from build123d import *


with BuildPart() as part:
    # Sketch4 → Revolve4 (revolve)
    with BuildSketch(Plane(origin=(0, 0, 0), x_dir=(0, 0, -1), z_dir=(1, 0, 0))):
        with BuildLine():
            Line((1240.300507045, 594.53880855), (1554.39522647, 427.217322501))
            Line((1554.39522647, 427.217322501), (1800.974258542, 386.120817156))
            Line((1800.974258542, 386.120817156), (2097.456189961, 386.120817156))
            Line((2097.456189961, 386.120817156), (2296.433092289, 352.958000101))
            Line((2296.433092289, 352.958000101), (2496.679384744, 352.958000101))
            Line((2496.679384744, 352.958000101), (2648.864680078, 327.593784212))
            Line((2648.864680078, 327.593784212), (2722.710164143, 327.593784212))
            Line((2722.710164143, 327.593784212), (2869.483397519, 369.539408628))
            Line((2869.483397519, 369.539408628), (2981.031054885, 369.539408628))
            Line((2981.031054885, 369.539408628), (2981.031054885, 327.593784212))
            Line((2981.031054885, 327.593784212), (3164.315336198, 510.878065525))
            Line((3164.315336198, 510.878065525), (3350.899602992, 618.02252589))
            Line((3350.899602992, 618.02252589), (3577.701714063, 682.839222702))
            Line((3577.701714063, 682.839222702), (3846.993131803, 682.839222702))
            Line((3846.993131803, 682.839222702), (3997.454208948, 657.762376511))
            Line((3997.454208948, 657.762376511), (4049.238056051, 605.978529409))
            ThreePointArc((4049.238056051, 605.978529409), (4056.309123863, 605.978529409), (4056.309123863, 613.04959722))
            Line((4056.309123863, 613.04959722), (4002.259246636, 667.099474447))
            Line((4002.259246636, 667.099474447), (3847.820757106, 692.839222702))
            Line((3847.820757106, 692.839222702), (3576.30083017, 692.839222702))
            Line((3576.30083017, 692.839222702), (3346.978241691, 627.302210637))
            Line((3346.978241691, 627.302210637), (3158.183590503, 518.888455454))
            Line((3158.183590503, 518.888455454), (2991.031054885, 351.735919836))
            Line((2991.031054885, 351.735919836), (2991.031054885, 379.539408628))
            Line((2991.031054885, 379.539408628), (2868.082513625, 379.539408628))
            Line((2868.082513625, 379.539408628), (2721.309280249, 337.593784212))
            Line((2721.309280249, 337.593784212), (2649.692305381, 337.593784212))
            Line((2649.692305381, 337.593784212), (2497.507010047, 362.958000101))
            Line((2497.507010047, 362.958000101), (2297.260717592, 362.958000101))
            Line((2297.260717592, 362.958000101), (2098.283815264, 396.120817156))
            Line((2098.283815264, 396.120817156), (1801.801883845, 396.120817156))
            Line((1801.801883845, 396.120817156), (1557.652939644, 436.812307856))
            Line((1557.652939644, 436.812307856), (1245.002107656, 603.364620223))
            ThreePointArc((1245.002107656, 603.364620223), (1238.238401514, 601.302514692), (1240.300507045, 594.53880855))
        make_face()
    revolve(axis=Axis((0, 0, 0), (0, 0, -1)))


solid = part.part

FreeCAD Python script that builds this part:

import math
import FreeCAD as App
import Part
import Sketcher

V = App.Vector
Q = App.Units.Quantity

doc = App.newDocument("Part")
body = doc.addObject("PartDesign::Body", "Body")

# Sketch on YZ plane
sketch1 = doc.addObject("Sketcher::SketchObject", "Sketch")
body.addObject(sketch1)
sketch1.AttachmentSupport = (doc.YZ_Plane, [""])
sketch1.MapMode = "FlatFace"
sketch1.addGeometry(Part.LineSegment(V(594.538809, -1240.300507, 0), V(427.217323, -1554.395226, 0)), False)
sketch1.addGeometry(Part.LineSegment(V(427.217323, -1554.395226, 0), V(386.120817, -1800.974259, 0)), False)
sketch1.addGeometry(Part.LineSegment(V(386.120817, -1800.974259, 0), V(386.120817, -2097.45619, 0)), False)
sketch1.addGeometry(Part.LineSegment(V(386.120817, -2097.45619, 0), V(352.958, -2296.433092, 0)), False)
sketch1.addGeometry(Part.LineSegment(V(352.958, -2296.433092, 0), V(352.958, -2496.679385, 0)), False)
sketch1.addGeometry(Part.LineSegment(V(352.958, -2496.679385, 0), V(327.593784, -2648.86468, 0)), False)
sketch1.addGeometry(Part.LineSegment(V(327.593784, -2648.86468, 0), V(327.593784, -2722.710164, 0)), False)
sketch1.addGeometry(Part.LineSegment(V(327.593784, -2722.710164, 0), V(369.539409, -2869.483398, 0)), False)
sketch1.addGeometry(Part.LineSegment(V(369.539409, -2869.483398, 0), V(369.539409, -2981.031055, 0)), False)
sketch1.addGeometry(Part.LineSegment(V(369.539409, -2981.031055, 0), V(327.593784, -2981.031055, 0)), False)
sketch1.addGeometry(Part.LineSegment(V(327.593784, -2981.031055, 0), V(510.878066, -3164.315336, 0)), False)
sketch1.addGeometry(Part.LineSegment(V(510.878066, -3164.315336, 0), V(618.022526, -3350.899603, 0)), False)
sketch1.addGeometry(Part.LineSegment(V(618.022526, -3350.899603, 0), V(682.839223, -3577.701714, 0)), False)
sketch1.addGeometry(Part.LineSegment(V(682.839223, -3577.701714, 0), V(682.839223, -3846.993132, 0)), False)
sketch1.addGeometry(Part.LineSegment(V(682.839223, -3846.993132, 0), V(657.762377, -3997.454209, 0)), False)
sketch1.addGeometry(Part.LineSegment(V(657.762377, -3997.454209, 0), V(605.978529, -4049.238056, 0)), False)
sketch1.addGeometry(Part.ArcOfCircle(Part.Circle(V(609.514063, -4052.77359, 0), V(0, 0, 1), 5), math.radians(135), math.radians(315)), False)
sketch1.addGeometry(Part.LineSegment(V(613.049597, -4056.309124, 0), V(667.099474, -4002.259247, 0)), False)
sketch1.addGeometry(Part.LineSegment(V(667.099474, -4002.259247, 0), V(692.839223, -3847.820757, 0)), False)
sketch1.addGeometry(Part.LineSegment(V(692.839223, -3847.820757, 0), V(692.839223, -3576.30083, 0)), False)
sketch1.addGeometry(Part.LineSegment(V(692.839223, -3576.30083, 0), V(627.302211, -3346.978242, 0)), False)
sketch1.addGeometry(Part.LineSegment(V(627.302211, -3346.978242, 0), V(518.888455, -3158.183591, 0)), False)
sketch1.addGeometry(Part.LineSegment(V(518.888455, -3158.183591, 0), V(351.73592, -2991.031055, 0)), False)
sketch1.addGeometry(Part.LineSegment(V(351.73592, -2991.031055, 0), V(379.539409, -2991.031055, 0)), False)
sketch1.addGeometry(Part.LineSegment(V(379.539409, -2991.031055, 0), V(379.539409, -2868.082514, 0)), False)
sketch1.addGeometry(Part.LineSegment(V(379.539409, -2868.082514, 0), V(337.593784, -2721.30928, 0)), False)
sketch1.addGeometry(Part.LineSegment(V(337.593784, -2721.30928, 0), V(337.593784, -2649.692305, 0)), False)
sketch1.addGeometry(Part.LineSegment(V(337.593784, -2649.692305, 0), V(362.958, -2497.50701, 0)), False)
sketch1.addGeometry(Part.LineSegment(V(362.958, -2497.50701, 0), V(362.958, -2297.260718, 0)), False)
sketch1.addGeometry(Part.LineSegment(V(362.958, -2297.260718, 0), V(396.120817, -2098.283815, 0)), False)
sketch1.addGeometry(Part.LineSegment(V(396.120817, -2098.283815, 0), V(396.120817, -1801.801884, 0)), False)
sketch1.addGeometry(Part.LineSegment(V(396.120817, -1801.801884, 0), V(436.812308, -1557.65294, 0)), False)
sketch1.addGeometry(Part.LineSegment(V(436.812308, -1557.65294, 0), V(603.36462, -1245.002108, 0)), False)
sketch1.addGeometry(Part.ArcOfCircle(Part.Circle(V(598.951714, -1242.651307, 0), V(0, 0, 1), 5), math.radians(-28.044687), math.radians(151.955313)), False)
sketch1.addConstraint(Sketcher.Constraint("Coincident", 0, 2, 1, 1))
sketch1.addConstraint(Sketcher.Constraint("Coincident", 1, 2, 2, 1))
sketch1.addConstraint(Sketcher.Constraint("Coincident", 2, 2, 3, 1))
sketch1.addConstraint(Sketcher.Constraint("Coincident", 3, 2, 4, 1))
sketch1.addConstraint(Sketcher.Constraint("Coincident", 4, 2, 5, 1))
sketch1.addConstraint(Sketcher.Constraint("Coincident", 5, 2, 6, 1))
sketch1.addConstraint(Sketcher.Constraint("Coincident", 6, 2, 7, 1))
sketch1.addConstraint(Sketcher.Constraint("Coincident", 7, 2, 8, 1))
sketch1.addConstraint(Sketcher.Constraint("Coincident", 8, 2, 9, 1))
sketch1.addConstraint(Sketcher.Constraint("Coincident", 9, 2, 10, 1))
sketch1.addConstraint(Sketcher.Constraint("Coincident", 10, 2, 11, 1))
sketch1.addConstraint(Sketcher.Constraint("Coincident", 11, 2, 12, 1))
sketch1.addConstraint(Sketcher.Constraint("Coincident", 12, 2, 13, 1))
sketch1.addConstraint(Sketcher.Constraint("Coincident", 13, 2, 14, 1))
sketch1.addConstraint(Sketcher.Constraint("Coincident", 14, 2, 15, 1))
sketch1.addConstraint(Sketcher.Constraint("Tangent", 15, 2, 16, 1))
sketch1.addConstraint(Sketcher.Constraint("Tangent", 16, 2, 17, 1))
sketch1.addConstraint(Sketcher.Constraint("Coincident", 17, 2, 18, 1))
sketch1.addConstraint(Sketcher.Constraint("Coincident", 18, 2, 19, 1))
sketch1.addConstraint(Sketcher.Constraint("Coincident", 19, 2, 20, 1))
sketch1.addConstraint(Sketcher.Constraint("Coincident", 20, 2, 21, 1))
sketch1.addConstraint(Sketcher.Constraint("Coincident", 21, 2, 22, 1))
sketch1.addConstraint(Sketcher.Constraint("Coincident", 22, 2, 23, 1))
sketch1.addConstraint(Sketcher.Constraint("Coincident", 23, 2, 24, 1))
sketch1.addConstraint(Sketcher.Constraint("Coincident", 24, 2, 25, 1))
sketch1.addConstraint(Sketcher.Constraint("Coincident", 25, 2, 26, 1))
sketch1.addConstraint(Sketcher.Constraint("Coincident", 26, 2, 27, 1))
sketch1.addConstraint(Sketcher.Constraint("Coincident", 27, 2, 28, 1))
sketch1.addConstraint(Sketcher.Constraint("Coincident", 28, 2, 29, 1))
sketch1.addConstraint(Sketcher.Constraint("Coincident", 29, 2, 30, 1))
sketch1.addConstraint(Sketcher.Constraint("Coincident", 30, 2, 31, 1))
sketch1.addConstraint(Sketcher.Constraint("Coincident", 31, 2, 32, 1))
sketch1.addConstraint(Sketcher.Constraint("Tangent", 32, 2, 33, 1))
sketch1.addConstraint(Sketcher.Constraint("Tangent", 33, 2, 0, 1))
sketch1.addConstraint(Sketcher.Constraint("Vertical", 2))
sketch1.addConstraint(Sketcher.Constraint("Vertical", 4))
sketch1.addConstraint(Sketcher.Constraint("Vertical", 6))
sketch1.addConstraint(Sketcher.Constraint("Vertical", 8))
sketch1.addConstraint(Sketcher.Constraint("Horizontal", 9))
sketch1.addConstraint(Sketcher.Constraint("Vertical", 13))
sketch1.addConstraint(Sketcher.Constraint("Vertical", 19))
sketch1.addConstraint(Sketcher.Constraint("Horizontal", 23))
sketch1.addConstraint(Sketcher.Constraint("Vertical", 24))
sketch1.addConstraint(Sketcher.Constraint("Vertical", 26))
sketch1.addConstraint(Sketcher.Constraint("Vertical", 28))
sketch1.addConstraint(Sketcher.Constraint("Vertical", 30))
sketch1.addConstraint(Sketcher.Constraint("Equal", 16, 33))
sketch1.addConstraint(Sketcher.Constraint("Parallel", 1, 3))
sketch1.addConstraint(Sketcher.Constraint("Parallel", 3, 5))
sketch1.addConstraint(Sketcher.Constraint("Parallel", 7, 12))
sketch1.addConstraint(Sketcher.Constraint("Parallel", 5, 14))
sketch1.addConstraint(Sketcher.Constraint("Perpendicular", 10, 15))
sketch1.addConstraint(Sketcher.Constraint("Parallel", 15, 17))
sketch1.addConstraint(Sketcher.Constraint("Parallel", 14, 18))
sketch1.addConstraint(Sketcher.Constraint("Parallel", 12, 20))
sketch1.addConstraint(Sketcher.Constraint("Parallel", 11, 21))
sketch1.addConstraint(Sketcher.Constraint("Perpendicular", 17, 22))
sketch1.addConstraint(Sketcher.Constraint("Parallel", 20, 25))
sketch1.addConstraint(Sketcher.Constraint("Parallel", 18, 27))
sketch1.addConstraint(Sketcher.Constraint("Parallel", 27, 29))
sketch1.addConstraint(Sketcher.Constraint("Parallel", 29, 31))
sketch1.addConstraint(Sketcher.Constraint("Parallel", 0, 32))
sketch1.addConstraint(Sketcher.Constraint("Vertical", 6, 2, 9, 2))
sketch1.addConstraint(Sketcher.Constraint("Equal", 4, 28))
sketch1.addConstraint(Sketcher.Constraint("Equal", 2, 30))
sketch1.addConstraint(Sketcher.Constraint("Equal", 7, 25))
sketch1.addConstraint(Sketcher.Constraint("Equal", 5, 27))
sketch1.addConstraint(Sketcher.Constraint("Equal", 3, 29))
sketch1.addConstraint(Sketcher.Constraint("Radius", 16, Q("5 mm")))
sketch1.addConstraint(Sketcher.Constraint("Angle", 10, Q("-45 deg")))
sketch1.addConstraint(Sketcher.Constraint("DistanceX", 13, 2, 18, 2, Q("10 mm")))
sketch1.addConstraint(Sketcher.Constraint("DistanceY", 22, 2, 8, 2, Q("10 mm")))
sketch1.addConstraint(Sketcher.Constraint("DistanceX", 8, 2, 23, 2, Q("10 mm")))
sketch1.addConstraint(Sketcher.Constraint("DistanceX", -1, 1, 3, 2, Q("352.958 mm")))
sketch1.addConstraint(Sketcher.Constraint("Distance", 14, Q("152.5365 mm")))
sketch1.addConstraint(Sketcher.Constraint("DistanceX", 23, 1, 23, 2, Q("27.803489 mm")))
sketch1.addConstraint(Sketcher.Constraint("DistanceY", 2, 2, 2, 1, Q("296.481931 mm")))
sketch1.addConstraint(Sketcher.Constraint("DistanceY", 24, 1, 24, 2, Q("122.948541 mm")))
sketch1.addConstraint(Sketcher.Constraint("DistanceY", 16, 3, 2, 2, Q("1955.3174 mm")))
sketch1.addConstraint(Sketcher.Constraint("DistanceY", 15, 2, 18, 2, Q("201.417299 mm")))
sketch1.addConstraint(Sketcher.Constraint("DistanceY", 13, 2, 19, 2, Q("270.692302 mm")))
sketch1.addConstraint(Sketcher.Constraint("DistanceY", 25, 2, 5, 2, Q("72.4446 mm")))
sketch1.addConstraint(Sketcher.Constraint("DistanceY", 32, 2, 33, 3, Q("2.3508 mm")))
sketch1.addConstraint(Sketcher.Constraint("DistanceX", 31, 2, 33, 2, Q("157.726501 mm")))
sketch1.addConstraint(Sketcher.Constraint("Distance", 3, Q("201.721541 mm")))
sketch1.addConstraint(Sketcher.Constraint("Distance", 7, Q("152.649328 mm")))
sketch1.addConstraint(Sketcher.Constraint("Distance", 11, Q("215.159532 mm")))
sketch1.addConstraint(Sketcher.Constraint("Distance", 15, Q("73.233419 mm")))
sketch1.addConstraint(Sketcher.Constraint("Distance", 17, Q("76.438069 mm")))
sketch1.addConstraint(Sketcher.Constraint("DistanceX", 9, 2, 9, 1, Q("41.945624 mm")))
sketch1.addConstraint(Sketcher.Constraint("DistanceY", 4, 2, 4, 1, Q("200.246292 mm")))
sketch1.addConstraint(Sketcher.Constraint("DistanceY", 6, 2, 6, 1, Q("73.845484 mm")))
sketch1.addConstraint(Sketcher.Constraint("DistanceY", 13, 2, 13, 1, Q("269.291418 mm")))
sketch1.addConstraint(Sketcher.Constraint("DistanceY", 26, 1, 26, 2, Q("71.616975 mm")))
sketch1.addConstraint(Sketcher.Constraint("DistanceY", 16, 3, -1, 1, Q("4052.77359 mm")))
sketch1.addConstraint(Sketcher.Constraint("DistanceY", 5, 2, -1, 1, Q("2648.86468 mm")))
sketch1.addConstraint(Sketcher.Constraint("DistanceX", -1, 1, 15, 2, Q("605.978529 mm")))
sketch1.addConstraint(Sketcher.Constraint("DistanceX", -1, 1, 20, 2, Q("627.302211 mm")))
sketch1.addConstraint(Sketcher.Constraint("DistanceY", 21, 2, -1, 1, Q("3158.183591 mm")))
sketch1.addConstraint(Sketcher.Constraint("DistanceY", 31, 2, -1, 1, Q("1557.65294 mm")))
revolution = doc.addObject("PartDesign::Revolution", "Revolution")
body.addObject(revolution)
revolution.Profile = sketch1
revolution.ReferenceAxis = (sketch1, ["V_Axis"])
revolution.Angle = 360

doc.recompute()
